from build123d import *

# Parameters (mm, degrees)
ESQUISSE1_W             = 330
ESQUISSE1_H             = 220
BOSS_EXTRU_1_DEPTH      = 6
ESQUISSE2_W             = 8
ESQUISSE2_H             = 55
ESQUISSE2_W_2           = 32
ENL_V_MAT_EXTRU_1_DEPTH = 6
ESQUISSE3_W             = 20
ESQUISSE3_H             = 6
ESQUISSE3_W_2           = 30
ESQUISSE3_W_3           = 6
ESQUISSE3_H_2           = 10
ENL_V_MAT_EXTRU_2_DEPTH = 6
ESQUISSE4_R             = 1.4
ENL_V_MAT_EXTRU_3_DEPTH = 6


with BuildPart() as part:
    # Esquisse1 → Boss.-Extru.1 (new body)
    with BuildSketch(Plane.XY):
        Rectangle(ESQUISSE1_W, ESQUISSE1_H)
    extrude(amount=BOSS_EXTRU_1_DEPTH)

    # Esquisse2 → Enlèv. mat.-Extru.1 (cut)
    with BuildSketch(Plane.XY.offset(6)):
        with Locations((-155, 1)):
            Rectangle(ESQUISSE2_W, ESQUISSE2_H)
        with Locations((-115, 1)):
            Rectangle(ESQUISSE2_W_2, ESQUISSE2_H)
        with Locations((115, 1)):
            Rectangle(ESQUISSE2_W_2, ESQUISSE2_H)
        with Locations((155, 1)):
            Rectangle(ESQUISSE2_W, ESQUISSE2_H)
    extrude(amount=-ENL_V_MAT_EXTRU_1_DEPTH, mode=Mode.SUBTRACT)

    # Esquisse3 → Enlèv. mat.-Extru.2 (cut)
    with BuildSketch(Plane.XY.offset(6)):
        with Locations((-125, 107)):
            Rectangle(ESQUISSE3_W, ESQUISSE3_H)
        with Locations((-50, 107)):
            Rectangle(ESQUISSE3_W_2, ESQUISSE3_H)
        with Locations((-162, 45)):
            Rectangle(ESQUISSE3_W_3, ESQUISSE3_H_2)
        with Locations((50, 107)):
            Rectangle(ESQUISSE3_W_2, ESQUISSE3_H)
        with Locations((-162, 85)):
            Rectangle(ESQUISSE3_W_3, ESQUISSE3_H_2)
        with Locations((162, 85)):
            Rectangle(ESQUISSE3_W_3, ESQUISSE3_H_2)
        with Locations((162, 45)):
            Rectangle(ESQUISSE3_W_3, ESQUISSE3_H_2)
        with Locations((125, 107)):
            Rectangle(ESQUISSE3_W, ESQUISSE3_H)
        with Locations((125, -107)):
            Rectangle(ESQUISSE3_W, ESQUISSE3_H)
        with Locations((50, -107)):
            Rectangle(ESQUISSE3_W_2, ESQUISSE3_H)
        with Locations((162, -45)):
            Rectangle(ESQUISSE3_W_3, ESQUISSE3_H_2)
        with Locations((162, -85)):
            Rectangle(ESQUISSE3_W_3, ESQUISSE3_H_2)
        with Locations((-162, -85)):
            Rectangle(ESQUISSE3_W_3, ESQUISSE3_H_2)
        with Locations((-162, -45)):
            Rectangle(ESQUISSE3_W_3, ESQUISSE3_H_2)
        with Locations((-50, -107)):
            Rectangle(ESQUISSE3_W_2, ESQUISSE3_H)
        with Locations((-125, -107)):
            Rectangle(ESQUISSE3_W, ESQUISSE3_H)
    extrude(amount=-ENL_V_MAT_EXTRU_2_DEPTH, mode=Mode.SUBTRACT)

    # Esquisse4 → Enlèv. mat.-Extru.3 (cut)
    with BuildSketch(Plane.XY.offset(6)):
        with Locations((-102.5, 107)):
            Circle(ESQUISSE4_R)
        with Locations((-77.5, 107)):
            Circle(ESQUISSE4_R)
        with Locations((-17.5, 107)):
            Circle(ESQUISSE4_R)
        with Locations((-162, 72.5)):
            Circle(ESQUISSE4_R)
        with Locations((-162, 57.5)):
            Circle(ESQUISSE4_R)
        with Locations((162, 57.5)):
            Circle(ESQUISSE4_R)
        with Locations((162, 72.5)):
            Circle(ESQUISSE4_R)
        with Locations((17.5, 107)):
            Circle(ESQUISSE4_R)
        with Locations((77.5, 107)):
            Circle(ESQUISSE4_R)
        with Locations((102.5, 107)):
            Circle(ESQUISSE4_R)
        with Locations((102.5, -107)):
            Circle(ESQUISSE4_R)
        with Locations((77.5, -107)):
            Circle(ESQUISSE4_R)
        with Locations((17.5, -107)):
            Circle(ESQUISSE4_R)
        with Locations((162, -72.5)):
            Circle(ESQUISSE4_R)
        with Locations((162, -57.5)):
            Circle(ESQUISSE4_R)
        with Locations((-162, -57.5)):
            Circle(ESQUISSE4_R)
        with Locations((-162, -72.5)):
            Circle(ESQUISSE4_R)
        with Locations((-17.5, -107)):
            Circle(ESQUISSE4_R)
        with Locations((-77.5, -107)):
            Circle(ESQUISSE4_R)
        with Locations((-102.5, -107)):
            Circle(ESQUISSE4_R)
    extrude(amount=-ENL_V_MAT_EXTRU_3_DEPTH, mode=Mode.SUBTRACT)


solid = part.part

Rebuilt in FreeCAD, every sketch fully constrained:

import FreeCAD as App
import Part
import Sketcher
Q = App.Units.Quantity

doc = App.newDocument("Part")
body = doc.addObject("PartDesign::Body", "Body")

sketch1 = doc.addObject("Sketcher::SketchObject", "Sketch")
body.addObject(sketch1)
sketch1.AttachmentSupport = (doc.XY_Plane, [""])
sketch1.MapMode = "FlatFace"
sketch1.addGeometry([
    Part.LineSegment(App.Vector(-165, 110, 0), App.Vector(-165, -110, 0)),
    Part.LineSegment(App.Vector(-165, -110, 0), App.Vector(165, -110, 0)),
    Part.LineSegment(App.Vector(165, -110, 0), App.Vector(165, 110, 0)),
    Part.LineSegment(App.Vector(165, 110, 0), App.Vector(-165, 110, 0)),
], False)
sketch1.addConstraint([
    Sketcher.Constraint("Coincident", 0, 2, 1, 1),
    Sketcher.Constraint("Coincident", 1, 2, 2, 1),
    Sketcher.Constraint("Coincident", 2, 2, 3, 1),
    Sketcher.Constraint("Coincident", 3, 2, 0, 1),
    Sketcher.Constraint("Vertical", 0),
    Sketcher.Constraint("Horizontal", 1),
    Sketcher.Constraint("Vertical", 2),
    Sketcher.Constraint("Horizontal", 3),
    Sketcher.Constraint("Symmetric", 0, 2, 2, 2, -1, 1),
    Sketcher.Constraint("DistanceX", 1, 1, 1, 2, Q("330 mm")),
    Sketcher.Constraint("DistanceY", 0, 2, 0, 1, Q("220 mm")),
])
pad1 = doc.addObject("PartDesign::Pad", "Pad")
body.addObject(pad1)
pad1.Profile = sketch1
pad1.Length = 6

sketch2 = doc.addObject("Sketcher::SketchObject", "Sketch001")
body.addObject(sketch2)
sketch2.AttachmentSupport = (doc.XY_Plane, [""])
sketch2.MapMode = "FlatFace"
sketch2.AttachmentOffset = App.Placement(App.Vector(0, 0, 6), App.Rotation())
sketch2.addGeometry([
    Part.LineSegment(App.Vector(-159, 28.5, 0), App.Vector(-159, -26.5, 0)),
    Part.LineSegment(App.Vector(-159, -26.5, 0), App.Vector(-151, -26.5, 0)),
    Part.LineSegment(App.Vector(-151, -26.5, 0), App.Vector(-151, 28.5, 0)),
    Part.LineSegment(App.Vector(-151, 28.5, 0), App.Vector(-159, 28.5, 0)),
    Part.LineSegment(App.Vector(-131, 28.5, 0), App.Vector(-131, -26.5, 0)),
    Part.LineSegment(App.Vector(-131, -26.5, 0), App.Vector(-99, -26.5, 0)),
    Part.LineSegment(App.Vector(-99, -26.5, 0), App.Vector(-99, 28.5, 0)),
    Part.LineSegment(App.Vector(-99, 28.5, 0), App.Vector(-131, 28.5, 0)),
    Part.LineSegment(App.Vector(99, 28.5, 0), App.Vector(99, -26.5, 0)),
    Part.LineSegment(App.Vector(99, -26.5, 0), App.Vector(131, -26.5, 0)),
    Part.LineSegment(App.Vector(131, -26.5, 0), App.Vector(131, 28.5, 0)),
    Part.LineSegment(App.Vector(131, 28.5, 0), App.Vector(99, 28.5, 0)),
    Part.LineSegment(App.Vector(151, 28.5, 0), App.Vector(151, -26.5, 0)),
    Part.LineSegment(App.Vector(151, -26.5, 0), App.Vector(159, -26.5, 0)),
    Part.LineSegment(App.Vector(159, -26.5, 0), App.Vector(159, 28.5, 0)),
    Part.LineSegment(App.Vector(159, 28.5, 0), App.Vector(151, 28.5, 0)),
], False)
sketch2.addConstraint([
    Sketcher.Constraint("Coincident", 0, 2, 1, 1),
    Sketcher.Constraint("Coincident", 1, 2, 2, 1),
    Sketcher.Constraint("Coincident", 2, 2, 3, 1),
    Sketcher.Constraint("Coincident", 3, 2, 0, 1),
    Sketcher.Constraint("Coincident", 4, 2, 5, 1),
    Sketcher.Constraint("Coincident", 5, 2, 6, 1),
    Sketcher.Constraint("Coincident", 6, 2, 7, 1),
    Sketcher.Constraint("Coincident", 7, 2, 4, 1),
    Sketcher.Constraint("Coincident", 8, 2, 9, 1),
    Sketcher.Constraint("Coincident", 9, 2, 10, 1),
    Sketcher.Constraint("Coincident", 10, 2, 11, 1),
    Sketcher.Constraint("Coincident", 11, 2, 8, 1),
    Sketcher.Constraint("Coincident", 12, 2, 13, 1),
    Sketcher.Constraint("Coincident", 13, 2, 14, 1),
    Sketcher.Constraint("Coincident", 14, 2, 15, 1),
    Sketcher.Constraint("Coincident", 15, 2, 12, 1),
    Sketcher.Constraint("Vertical", 0),
    Sketcher.Constraint("Horizontal", 1),
    Sketcher.Constraint("Vertical", 2),
    Sketcher.Constraint("Horizontal", 3),
    Sketcher.Constraint("Vertical", 4),
    Sketcher.Constraint("Horizontal", 5),
    Sketcher.Constraint("Vertical", 6),
    Sketcher.Constraint("Horizontal", 7),
    Sketcher.Constraint("Vertical", 8),
    Sketcher.Constraint("Horizontal", 9),
    Sketcher.Constraint("Vertical", 10),
    Sketcher.Constraint("Horizontal", 11),
    Sketcher.Constraint("Vertical", 12),
    Sketcher.Constraint("Horizontal", 13),
    Sketcher.Constraint("Vertical", 14),
    Sketcher.Constraint("Horizontal", 15),
    Sketcher.Constraint("Symmetric", 5, 2, 8, 2, -2),
    Sketcher.Constraint("Symmetric", 7, 2, 10, 2, -2),
    Sketcher.Constraint("Symmetric", 1, 2, 12, 2, -2),
    Sketcher.Constraint("Symmetric", 3, 2, 14, 2, -2),
    Sketcher.Constraint("Horizontal", 1, 2, 4, 2),
    Sketcher.Constraint("Horizontal", 3, 2, 6, 2),
    Sketcher.Constraint("DistanceX", 1, 1, 1, 2, Q("8 mm")),
    Sketcher.Constraint("DistanceX", 5, 1, 5, 2, Q("32 mm")),
    Sketcher.Constraint("DistanceY", 0, 2, 0, 1, Q("55 mm")),
    Sketcher.Constraint("DistanceX", 0, 2, -1, 1, Q("159 mm")),
    Sketcher.Constraint("DistanceX", 4, 2, -1, 1, Q("131 mm")),
    Sketcher.Constraint("DistanceY", 0, 2, -1, 1, Q("26.5 mm")),
])
pocket1 = doc.addObject("PartDesign::Pocket", "Pocket")
body.addObject(pocket1)
pocket1.Profile = sketch2
pocket1.Length = 6

sketch3 = doc.addObject("Sketcher::SketchObject", "Sketch002")
body.addObject(sketch3)
sketch3.AttachmentSupport = (doc.XY_Plane, [""])
sketch3.MapMode = "FlatFace"
sketch3.AttachmentOffset = App.Placement(App.Vector(0, 0, 6), App.Rotation())
sketch3.addGeometry([
    Part.LineSegment(App.Vector(-135, 110, 0), App.Vector(-135, 104, 0)),
    Part.LineSegment(App.Vector(-135, 104, 0), App.Vector(-115, 104, 0)),
    Part.LineSegment(App.Vector(-115, 104, 0), App.Vector(-115, 110, 0)),
    Part.LineSegment(App.Vector(-115, 110, 0), App.Vector(-135, 110, 0)),
    Part.LineSegment(App.Vector(-65, 110, 0), App.Vector(-65, 104, 0)),
    Part.LineSegment(App.Vector(-65, 104, 0), App.Vector(-35, 104, 0)),
    Part.LineSegment(App.Vector(-35, 104, 0), App.Vector(-35, 110, 0)),
    Part.LineSegment(App.Vector(-35, 110, 0), App.Vector(-65, 110, 0)),
    Part.LineSegment(App.Vector(-165, 50, 0), App.Vector(-165, 40, 0)),
    Part.LineSegment(App.Vector(-165, 40, 0), App.Vector(-159, 40, 0)),
    Part.LineSegment(App.Vector(-159, 40, 0), App.Vector(-159, 50, 0)),
    Part.LineSegment(App.Vector(-159, 50, 0), App.Vector(-165, 50, 0)),
    Part.LineSegment(App.Vector(35, 110, 0), App.Vector(35, 104, 0)),
    Part.LineSegment(App.Vector(35, 104, 0), App.Vector(65, 104, 0)),
    Part.LineSegment(App.Vector(65, 104, 0), App.Vector(65, 110, 0)),
    Part.LineSegment(App.Vector(65, 110, 0), App.Vector(35, 110, 0)),
    Part.LineSegment(App.Vector(-165, 90, 0), App.Vector(-165, 80, 0)),
    Part.LineSegment(App.Vector(-165, 80, 0), App.Vector(-159, 80, 0)),
    Part.LineSegment(App.Vector(-159, 80, 0), App.Vector(-159, 90, 0)),
    Part.LineSegment(App.Vector(-159, 90, 0), App.Vector(-165, 90, 0)),
    Part.LineSegment(App.Vector(159, 90, 0), App.Vector(159, 80, 0)),
    Part.LineSegment(App.Vector(159, 80, 0), App.Vector(165, 80, 0)),
    Part.LineSegment(App.Vector(165, 80, 0), App.Vector(165, 90, 0)),
    Part.LineSegment(App.Vector(165, 90, 0), App.Vector(159, 90, 0)),
    Part.LineSegment(App.Vector(159, 50, 0), App.Vector(159, 40, 0)),
    Part.LineSegment(App.Vector(159, 40, 0), App.Vector(165, 40, 0)),
    Part.LineSegment(App.Vector(165, 40, 0), App.Vector(165, 50, 0)),
    Part.LineSegment(App.Vector(165, 50, 0), App.Vector(159, 50, 0)),
    Part.LineSegment(App.Vector(115, 110, 0), App.Vector(115, 104, 0)),
    Part.LineSegment(App.Vector(115, 104, 0), App.Vector(135, 104, 0)),
    Part.LineSegment(App.Vector(135, 104, 0), App.Vector(135, 110, 0)),
    Part.LineSegment(App.Vector(135, 110, 0), App.Vector(115, 110, 0)),
    Part.LineSegment(App.Vector(115, -104, 0), App.Vector(115, -110, 0)),
    Part.LineSegment(App.Vector(115, -110, 0), App.Vector(135, -110, 0)),
    Part.LineSegment(App.Vector(135, -110, 0), App.Vector(135, -104, 0)),
    Part.LineSegment(App.Vector(135, -104, 0), App.Vector(115, -104, 0)),
    Part.LineSegment(App.Vector(35, -104, 0), App.Vector(35, -110, 0)),
    Part.LineSegment(App.Vector(35, -110, 0), App.Vector(65, -110, 0)),
    Part.LineSegment(App.Vector(65, -110, 0), App.Vector(65, -104, 0)),
    Part.LineSegment(App.Vector(65, -104, 0), App.Vector(35, -104, 0)),
    Part.LineSegment(App.Vector(159, -40, 0), App.Vector(159, -50, 0)),
    Part.LineSegment(App.Vector(159, -50, 0), App.Vector(165, -50, 0)),
    Part.LineSegment(App.Vector(165, -50, 0), App.Vector(165, -40, 0)),
    Part.LineSegment(App.Vector(165, -40, 0), App.Vector(159, -40, 0)),
    Part.LineSegment(App.Vector(159, -80, 0), App.Vector(159, -90, 0)),
    Part.LineSegment(App.Vector(159, -90, 0), App.Vector(165, -90, 0)),
    Part.LineSegment(App.Vector(165, -90, 0), App.Vector(165, -80, 0)),
    Part.LineSegment(App.Vector(165, -80, 0), App.Vector(159, -80, 0)),
    Part.LineSegment(App.Vector(-165, -80, 0), App.Vector(-165, -90, 0)),
    Part.LineSegment(App.Vector(-165, -90, 0), App.Vector(-159, -90, 0)),
    Part.LineSegment(App.Vector(-159, -90, 0), App.Vector(-159, -80, 0)),
    Part.LineSegment(App.Vector(-159, -80, 0), App.Vector(-165, -80, 0)),
    Part.LineSegment(App.Vector(-165, -40, 0), App.Vector(-165, -50, 0)),
    Part.LineSegment(App.Vector(-165, -50, 0), App.Vector(-159, -50, 0)),
    Part.LineSegment(App.Vector(-159, -50, 0), App.Vector(-159, -40, 0)),
    Part.LineSegment(App.Vector(-159, -40, 0), App.Vector(-165, -40, 0)),
    Part.LineSegment(App.Vector(-65, -104, 0), App.Vector(-65, -110, 0)),
    Part.LineSegment(App.Vector(-65, -110, 0), App.Vector(-35, -110, 0)),
    Part.LineSegment(App.Vector(-35, -110, 0), App.Vector(-35, -104, 0)),
    Part.LineSegment(App.Vector(-35, -104, 0), App.Vector(-65, -104, 0)),
    Part.LineSegment(App.Vector(-135, -104, 0), App.Vector(-135, -110, 0)),
    Part.LineSegment(App.Vector(-135, -110, 0), App.Vector(-115, -110, 0)),
    Part.LineSegment(App.Vector(-115, -110, 0), App.Vector(-115, -104, 0)),
    Part.LineSegment(App.Vector(-115, -104, 0), App.Vector(-135, -104, 0)),
], False)
sketch3.addConstraint([
    Sketcher.Constraint("Coincident", 0, 2, 1, 1),
    Sketcher.Constraint("Coincident", 1, 2, 2, 1),
    Sketcher.Constraint("Coincident", 2, 2, 3, 1),
    Sketcher.Constraint("Coincident", 3, 2, 0, 1),
    Sketcher.Constraint("Coincident", 4, 2, 5, 1),
    Sketcher.Constraint("Coincident", 5, 2, 6, 1),
    Sketcher.Constraint("Coincident", 6, 2, 7, 1),
    Sketcher.Constraint("Coincident", 7, 2, 4, 1),
    Sketcher.Constraint("Coincident", 8, 2, 9, 1),
    Sketcher.Constraint("Coincident", 9, 2, 10, 1),
    Sketcher.Constraint("Coincident", 10, 2, 11, 1),
    Sketcher.Constraint("Coincident", 11, 2, 8, 1),
    Sketcher.Constraint("Coincident", 12, 2, 13, 1),
    Sketcher.Constraint("Coincident", 13, 2, 14, 1),
    Sketcher.Constraint("Coincident", 14, 2, 15, 1),
    Sketcher.Constraint("Coincident", 15, 2, 12, 1),
    Sketcher.Constraint("Coincident", 16, 2, 17, 1),
    Sketcher.Constraint("Coincident", 17, 2, 18, 1),
    Sketcher.Constraint("Coincident", 18, 2, 19, 1),
    Sketcher.Constraint("Coincident", 19, 2, 16, 1),
    Sketcher.Constraint("Coincident", 20, 2, 21, 1),
    Sketcher.Constraint("Coincident", 21, 2, 22, 1),
    Sketcher.Constraint("Coincident", 22, 2, 23, 1),
    Sketcher.Constraint("Coincident", 23, 2, 20, 1),
    Sketcher.Constraint("Coincident", 24, 2, 25, 1),
    Sketcher.Constraint("Coincident", 25, 2, 26, 1),
    Sketcher.Constraint("Coincident", 26, 2, 27, 1),
    Sketcher.Constraint("Coincident", 27, 2, 24, 1),
    Sketcher.Constraint("Coincident", 28, 2, 29, 1),
    Sketcher.Constraint("Coincident", 29, 2, 30, 1),
    Sketcher.Constraint("Coincident", 30, 2, 31, 1),
    Sketcher.Constraint("Coincident", 31, 2, 28, 1),
    Sketcher.Constraint("Coincident", 32, 2, 33, 1),
    Sketcher.Constraint("Coincident", 33, 2, 34, 1),
    Sketcher.Constraint("Coincident", 34, 2, 35, 1),
    Sketcher.Constraint("Coincident", 35, 2, 32, 1),
    Sketcher.Constraint("Coincident", 36, 2, 37, 1),
    Sketcher.Constraint("Coincident", 37, 2, 38, 1),
    Sketcher.Constraint("Coincident", 38, 2, 39, 1),
    Sketcher.Constraint("Coincident", 39, 2, 36, 1),
    Sketcher.Constraint("Coincident", 40, 2, 41, 1),
    Sketcher.Constraint("Coincident", 41, 2, 42, 1),
    Sketcher.Constraint("Coincident", 42, 2, 43, 1),
    Sketcher.Constraint("Coincident", 43, 2, 40, 1),
    Sketcher.Constraint("Coincident", 44, 2, 45, 1),
    Sketcher.Constraint("Coincident", 45, 2, 46, 1),
    Sketcher.Constraint("Coincident", 46, 2, 47, 1),
    Sketcher.Constraint("Coincident", 47, 2, 44, 1),
    Sketcher.Constraint("Coincident", 48, 2, 49, 1),
    Sketcher.Constraint("Coincident", 49, 2, 50, 1),
    Sketcher.Constraint("Coincident", 50, 2, 51, 1),
    Sketcher.Constraint("Coincident", 51, 2, 48, 1),
    Sketcher.Constraint("Coincident", 52, 2, 53, 1),
    Sketcher.Constraint("Coincident", 53, 2, 54, 1),
    Sketcher.Constraint("Coincident", 54, 2, 55, 1),
    Sketcher.Constraint("Coincident", 55, 2, 52, 1),
    Sketcher.Constraint("Coincident", 56, 2, 57, 1),
    Sketcher.Constraint("Coincident", 57, 2, 58, 1),
    Sketcher.Constraint("Coincident", 58, 2, 59, 1),
    Sketcher.Constraint("Coincident", 59, 2, 56, 1),
    Sketcher.Constraint("Coincident", 60, 2, 61, 1),
    Sketcher.Constraint("Coincident", 61, 2, 62, 1),
    Sketcher.Constraint("Coincident", 62, 2, 63, 1),
    Sketcher.Constraint("Coincident", 63, 2, 60, 1),
    Sketcher.Constraint("Vertical", 0),
    Sketcher.Constraint("Horizontal", 1),
    Sketcher.Constraint("Vertical", 2),
    Sketcher.Constraint("Horizontal", 3),
    Sketcher.Constraint("Vertical", 4),
    Sketcher.Constraint("Horizontal", 5),
    Sketcher.Constraint("Vertical", 6),
    Sketcher.Constraint("Horizontal", 7),
    Sketcher.Constraint("Vertical", 8),
    Sketcher.Constraint("Horizontal", 9),
    Sketcher.Constraint("Vertical", 10),
    Sketcher.Constraint("Horizontal", 11),
    Sketcher.Constraint("Vertical", 12),
    Sketcher.Constraint("Horizontal", 13),
    Sketcher.Constraint("Vertical", 14),
    Sketcher.Constraint("Horizontal", 15),
    Sketcher.Constraint("Vertical", 16),
    Sketcher.Constraint("Horizontal", 17),
    Sketcher.Constraint("Vertical", 18),
    Sketcher.Constraint("Horizontal", 19),
    Sketcher.Constraint("Vertical", 20),
    Sketcher.Constraint("Horizontal", 21),
    Sketcher.Constraint("Vertical", 22),
    Sketcher.Constraint("Horizontal", 23),
    Sketcher.Constraint("Vertical", 24),
    Sketcher.Constraint("Horizontal", 25),
    Sketcher.Constraint("Vertical", 26),
    Sketcher.Constraint("Horizontal", 27),
    Sketcher.Constraint("Vertical", 28),
    Sketcher.Constraint("Horizontal", 29),
    Sketcher.Constraint("Vertical", 30),
    Sketcher.Constraint("Horizontal", 31),
    Sketcher.Constraint("Vertical", 32),
    Sketcher.Constraint("Horizontal", 33),
    Sketcher.Constraint("Vertical", 34),
    Sketcher.Constraint("Horizontal", 35),
    Sketcher.Constraint("Vertical", 36),
    Sketcher.Constraint("Horizontal", 37),
    Sketcher.Constraint("Vertical", 38),
    Sketcher.Constraint("Horizontal", 39),
    Sketcher.Constraint("Vertical", 40),
    Sketcher.Constraint("Horizontal", 41),
    Sketcher.Constraint("Vertical", 42),
    Sketcher.Constraint("Horizontal", 43),
    Sketcher.Constraint("Vertical", 44),
    Sketcher.Constraint("Horizontal", 45),
    Sketcher.Constraint("Vertical", 46),
    Sketcher.Constraint("Horizontal", 47),
    Sketcher.Constraint("Vertical", 48),
    Sketcher.Constraint("Horizontal", 49),
    Sketcher.Constraint("Vertical", 50),
    Sketcher.Constraint("Horizontal", 51),
    Sketcher.Constraint("Vertical", 52),
    Sketcher.Constraint("Horizontal", 53),
    Sketcher.Constraint("Vertical", 54),
    Sketcher.Constraint("Horizontal", 55),
    Sketcher.Constraint("Vertical", 56),
    Sketcher.Constraint("Horizontal", 57),
    Sketcher.Constraint("Vertical", 58),
    Sketcher.Constraint("Horizontal", 59),
    Sketcher.Constraint("Vertical", 60),
    Sketcher.Constraint("Horizontal", 61),
    Sketcher.Constraint("Vertical", 62),
    Sketcher.Constraint("Horizontal", 63),
    Sketcher.Constraint("Symmetric", 2, 2, 32, 2, -1, 1),
    Sketcher.Constraint("Symmetric", 0, 2, 34, 2, -1, 1),
    Sketcher.Constraint("Symmetric", 6, 2, 36, 2, -1, 1),
    Sketcher.Constraint("Symmetric", 4, 2, 38, 2, -1, 1),
    Sketcher.Constraint("Symmetric", 10, 2, 40, 2, -1, 1),
    Sketcher.Constraint("Symmetric", 8, 2, 42, 2, -1, 1),
    Sketcher.Constraint("Symmetric", 18, 2, 44, 2, -1, 1),
    Sketcher.Constraint("Symmetric", 16, 2, 46, 2, -1, 1),
    Sketcher.Constraint("Symmetric", 22, 2, 48, 2, -1, 1),
    Sketcher.Constraint("Symmetric", 20, 2, 50, 2, -1, 1),
    Sketcher.Constraint("Symmetric", 26, 2, 52, 2, -1, 1),
    Sketcher.Constraint("Symmetric", 24, 2, 54, 2, -1, 1),
    Sketcher.Constraint("Symmetric", 14, 2, 56, 2, -1, 1),
    Sketcher.Constraint("Symmetric", 12, 2, 58, 2, -1, 1),
    Sketcher.Constraint("Symmetric", 30, 2, 60, 2, -1, 1),
    Sketcher.Constraint("Symmetric", 28, 2, 62, 2, -1, 1),
    Sketcher.Constraint("Symmetric", 5, 2, 12, 2, -2),
    Sketcher.Constraint("Symmetric", 7, 2, 14, 2, -2),
    Sketcher.Constraint("Symmetric", 17, 2, 20, 2, -2),
    Sketcher.Constraint("Symmetric", 19, 2, 22, 2, -2),
    Sketcher.Constraint("Symmetric", 9, 2, 24, 2, -2),
    Sketcher.Constraint("Symmetric", 11, 2, 26, 2, -2),
    Sketcher.Constraint("Symmetric", 1, 2, 28, 2, -2),
    Sketcher.Constraint("Symmetric", 3, 2, 30, 2, -2),
    Sketcher.Constraint("Horizontal", 1, 2, 4, 2),
    Sketcher.Constraint("Horizontal", 3, 2, 6, 2),
    Sketcher.Constraint("Vertical", 11, 2, 16, 2),
    Sketcher.Constraint("Vertical", 10, 2, 17, 2),
    Sketcher.Constraint("Equal", 55, 0),
    Sketcher.Constraint("Equal", 10, 16),
    Sketcher.Constraint("DistanceX", 1, 1, 1, 2, Q("20 mm")),
    Sketcher.Constraint("DistanceX", 5, 1, 5, 2, Q("30 mm")),
    Sketcher.Constraint("DistanceX", 9, 1, 9, 2, Q("6 mm")),
    Sketcher.Constraint("DistanceY", 8, 2, 8, 1, Q("10 mm")),
    Sketcher.Constraint("DistanceX", 0, 2, -1, 1, Q("135 mm")),
    Sketcher.Constraint("DistanceY", -1, 1, 0, 2, Q("104 mm")),
    Sketcher.Constraint("DistanceX", 4, 2, -1, 1, Q("65 mm")),
    Sketcher.Constraint("DistanceX", 8, 2, -1, 1, Q("165 mm")),
    Sketcher.Constraint("DistanceY", -1, 1, 8, 2, Q("40 mm")),
    Sketcher.Constraint("DistanceY", -1, 1, 16, 2, Q("80 mm")),
])
pocket2 = doc.addObject("PartDesign::Pocket", "Pocket001")
body.addObject(pocket2)
pocket2.Profile = sketch3
pocket2.Length = 6

sketch4 = doc.addObject("Sketcher::SketchObject", "Sketch003")
body.addObject(sketch4)
sketch4.AttachmentSupport = (doc.XY_Plane, [""])
sketch4.MapMode = "FlatFace"
sketch4.AttachmentOffset = App.Placement(App.Vector(0, 0, 6), App.Rotation())
sketch4.addGeometry([
    Part.Circle(App.Vector(-102.5, 107, 0), App.Vector(0, 0, 1), 1.4),
    Part.Circle(App.Vector(-77.5, 107, 0), App.Vector(0, 0, 1), 1.4),
    Part.Circle(App.Vector(-17.5, 107, 0), App.Vector(0, 0, 1), 1.4),
    Part.Circle(App.Vector(-162, 72.5, 0), App.Vector(0, 0, 1), 1.4),
    Part.Circle(App.Vector(-162, 57.5, 0), App.Vector(0, 0, 1), 1.4),
    Part.Circle(App.Vector(162, 57.5, 0), App.Vector(0, 0, 1), 1.4),
    Part.Circle(App.Vector(162, 72.5, 0), App.Vector(0, 0, 1), 1.4),
    Part.Circle(App.Vector(17.5, 107, 0), App.Vector(0, 0, 1), 1.4),
    Part.Circle(App.Vector(77.5, 107, 0), App.Vector(0, 0, 1), 1.4),
    Part.Circle(App.Vector(102.5, 107, 0), App.Vector(0, 0, 1), 1.4),
    Part.Circle(App.Vector(102.5, -107, 0), App.Vector(0, 0, 1), 1.4),
    Part.Circle(App.Vector(77.5, -107, 0), App.Vector(0, 0, 1), 1.4),
    Part.Circle(App.Vector(17.5, -107, 0), App.Vector(0, 0, 1), 1.4),
    Part.Circle(App.Vector(162, -72.5, 0), App.Vector(0, 0, 1), 1.4),
    Part.Circle(App.Vector(162, -57.5, 0), App.Vector(0, 0, 1), 1.4),
    Part.Circle(App.Vector(-162, -57.5, 0), App.Vector(0, 0, 1), 1.4),
    Part.Circle(App.Vector(-162, -72.5, 0), App.Vector(0, 0, 1), 1.4),
    Part.Circle(App.Vector(-17.5, -107, 0), App.Vector(0, 0, 1), 1.4),
    Part.Circle(App.Vector(-77.5, -107, 0), App.Vector(0, 0, 1), 1.4),
    Part.Circle(App.Vector(-102.5, -107, 0), App.Vector(0, 0, 1), 1.4),
], False)
sketch4.addConstraint([
    Sketcher.Constraint("Equal", 0, 1),
    Sketcher.Constraint("Equal", 1, 2),
    Sketcher.Constraint("Equal", 2, 3),
    Sketcher.Constraint("Equal", 3, 4),
    Sketcher.Constraint("Equal", 4, 5),
    Sketcher.Constraint("Equal", 5, 6),
    Sketcher.Constraint("Equal", 6, 7),
    Sketcher.Constraint("Equal", 7, 8),
    Sketcher.Constraint("Equal", 8, 9),
    Sketcher.Constraint("Equal", 9, 10),
    Sketcher.Constraint("Equal", 10, 11),
    Sketcher.Constraint("Equal", 11, 12),
    Sketcher.Constraint("Equal", 12, 13),
    Sketcher.Constraint("Equal", 13, 14),
    Sketcher.Constraint("Equal", 14, 15),
    Sketcher.Constraint("Equal", 15, 16),
    Sketcher.Constraint("Equal", 16, 17),
    Sketcher.Constraint("Equal", 17, 18),
    Sketcher.Constraint("Equal", 18, 19),
    Sketcher.Constraint("Symmetric", 0, 3, 10, 3, -1, 1),
    Sketcher.Constraint("Symmetric", 1, 3, 11, 3, -1, 1),
    Sketcher.Constraint("Symmetric", 2, 3, 12, 3, -1, 1),
    Sketcher.Constraint("Symmetric", 3, 3, 13, 3, -1, 1),
    Sketcher.Constraint("Symmetric", 4, 3, 14, 3, -1, 1),
    Sketcher.Constraint("Symmetric", 5, 3, 15, 3, -1, 1),
    Sketcher.Constraint("Symmetric", 6, 3, 16, 3, -1, 1),
    Sketcher.Constraint("Symmetric", 7, 3, 17, 3, -1, 1),
    Sketcher.Constraint("Symmetric", 8, 3, 18, 3, -1, 1),
    Sketcher.Constraint("Symmetric", 9, 3, 19, 3, -1, 1),
    Sketcher.Constraint("Symmetric", 4, 3, 5, 3, -2),
    Sketcher.Constraint("Symmetric", 3, 3, 6, 3, -2),
    Sketcher.Constraint("Symmetric", 2, 3, 7, 3, -2),
    Sketcher.Constraint("Symmetric", 1, 3, 8, 3, -2),
    Sketcher.Constraint("Symmetric", 0, 3, 9, 3, -2),
    Sketcher.Constraint("Horizontal", 0, 3, 1, 3),
    Sketcher.Constraint("Horizontal", 1, 3, 2, 3),
    Sketcher.Constraint("Vertical", 3, 3, 4, 3),
    Sketcher.Constraint("Diameter", 0, Q("2.8 mm")),
    Sketcher.Constraint("DistanceY", -1, 1, 0, 3, Q("107 mm")),
    Sketcher.Constraint("DistanceX", 3, 3, -1, 1, Q("162 mm")),
    Sketcher.Constraint("DistanceX", 0, 3, 1, 3, Q("25 mm")),
    Sketcher.Constraint("DistanceX", 1, 3, 2, 3, Q("60 mm")),
    Sketcher.Constraint("DistanceY", 4, 3, 3, 3, Q("15 mm")),
    Sketcher.Constraint("DistanceX", 2, 3, 7, 3, Q("35 mm")),
    Sketcher.Constraint("DistanceY", 13, 3, 5, 3, Q("130 mm")),
])
pocket3 = doc.addObject("PartDesign::Pocket", "Pocket002")
body.addObject(pocket3)
pocket3.Profile = sketch4
pocket3.Length = 6

doc.recompute()
